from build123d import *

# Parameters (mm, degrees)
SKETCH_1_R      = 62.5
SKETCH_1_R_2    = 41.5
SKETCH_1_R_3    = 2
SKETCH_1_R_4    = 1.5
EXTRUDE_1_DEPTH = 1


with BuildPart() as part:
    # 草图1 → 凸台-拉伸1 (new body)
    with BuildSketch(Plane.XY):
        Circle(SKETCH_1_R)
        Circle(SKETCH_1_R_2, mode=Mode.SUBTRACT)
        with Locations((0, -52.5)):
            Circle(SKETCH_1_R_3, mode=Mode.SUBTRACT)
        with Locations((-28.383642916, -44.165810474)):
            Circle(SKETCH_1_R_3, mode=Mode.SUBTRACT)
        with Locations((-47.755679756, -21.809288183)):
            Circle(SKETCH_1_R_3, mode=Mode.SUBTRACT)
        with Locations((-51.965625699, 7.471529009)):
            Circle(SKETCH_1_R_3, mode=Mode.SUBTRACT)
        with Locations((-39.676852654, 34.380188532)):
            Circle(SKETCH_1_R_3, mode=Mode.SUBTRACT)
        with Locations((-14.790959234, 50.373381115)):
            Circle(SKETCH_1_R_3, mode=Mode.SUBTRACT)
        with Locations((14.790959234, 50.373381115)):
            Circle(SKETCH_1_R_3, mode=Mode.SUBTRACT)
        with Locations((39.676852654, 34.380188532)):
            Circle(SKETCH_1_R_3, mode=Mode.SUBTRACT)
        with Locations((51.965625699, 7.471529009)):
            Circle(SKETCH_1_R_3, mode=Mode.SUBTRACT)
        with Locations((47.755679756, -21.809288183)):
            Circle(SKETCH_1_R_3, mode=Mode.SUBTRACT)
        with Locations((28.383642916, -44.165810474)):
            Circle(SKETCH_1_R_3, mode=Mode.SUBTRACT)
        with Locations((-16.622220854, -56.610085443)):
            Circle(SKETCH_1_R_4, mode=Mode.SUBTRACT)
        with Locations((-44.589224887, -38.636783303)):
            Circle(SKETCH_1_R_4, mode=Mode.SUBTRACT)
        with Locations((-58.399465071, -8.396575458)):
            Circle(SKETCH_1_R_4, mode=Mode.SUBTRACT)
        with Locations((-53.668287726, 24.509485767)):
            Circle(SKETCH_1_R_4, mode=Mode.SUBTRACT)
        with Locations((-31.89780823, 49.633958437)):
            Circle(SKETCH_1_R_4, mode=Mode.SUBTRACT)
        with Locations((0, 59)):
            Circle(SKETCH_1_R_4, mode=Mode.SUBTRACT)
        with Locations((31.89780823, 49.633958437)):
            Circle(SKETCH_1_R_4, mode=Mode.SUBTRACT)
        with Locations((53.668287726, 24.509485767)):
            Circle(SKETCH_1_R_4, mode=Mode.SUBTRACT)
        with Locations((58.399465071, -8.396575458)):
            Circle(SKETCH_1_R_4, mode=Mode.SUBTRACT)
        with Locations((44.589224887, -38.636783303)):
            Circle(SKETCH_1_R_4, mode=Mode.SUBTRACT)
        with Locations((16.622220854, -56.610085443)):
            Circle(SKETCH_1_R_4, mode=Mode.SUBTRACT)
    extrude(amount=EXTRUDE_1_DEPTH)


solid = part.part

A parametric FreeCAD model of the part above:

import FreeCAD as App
import Part
import Sketcher
from FreeCAD import Vector

doc = App.newDocument("Part")
body = doc.addObject("PartDesign::Body", "Body")

sketch1 = body.newObject("Sketcher::SketchObject", "Sketch")
sketch1.AttachmentSupport = (doc.getObject("XY_Plane"), [""])
sketch1.MapMode = "FlatFace"
sketch1.addGeometry([
    Part.Circle(Vector(0, 0, 0), Vector(0, 0, 1), 62.5),
    Part.Circle(Vector(-44.589225, -38.636783, 0), Vector(0, 0, 1), 1.5),
    Part.Circle(Vector(-16.622221, -56.610085, 0), Vector(0, 0, 1), 1.5),
    Part.Circle(Vector(-28.383643, -44.16581, 0), Vector(0, 0, 1), 2),
    Part.Circle(Vector(-47.75568, -21.809288, 0), Vector(0, 0, 1), 2),
    Part.Circle(Vector(-58.399465, -8.396575, 0), Vector(0, 0, 1), 1.5),
    Part.Circle(Vector(0, -52.5, 0), Vector(0, 0, 1), 2),
    Part.Circle(Vector(16.622221, -56.610085, 0), Vector(0, 0, 1), 1.5),
    Part.Circle(Vector(28.383643, -44.16581, 0), Vector(0, 0, 1), 2),
    Part.Circle(Vector(44.589225, -38.636783, 0), Vector(0, 0, 1), 1.5),
    Part.Circle(Vector(0, 0, 0), Vector(0, 0, 1), 41.5),
    Part.Circle(Vector(47.75568, -21.809288, 0), Vector(0, 0, 1), 2),
    Part.Circle(Vector(58.399465, -8.396575, 0), Vector(0, 0, 1), 1.5),
    Part.Circle(Vector(-51.965626, 7.471529, 0), Vector(0, 0, 1), 2),
    Part.Circle(Vector(-53.668288, 24.509486, 0), Vector(0, 0, 1), 1.5),
    Part.Circle(Vector(-39.676853, 34.380189, 0), Vector(0, 0, 1), 2),
    Part.Circle(Vector(-31.897808, 49.633958, 0), Vector(0, 0, 1), 1.5),
    Part.Circle(Vector(-14.790959, 50.373381, 0), Vector(0, 0, 1), 2),
    Part.Circle(Vector(51.965626, 7.471529, 0), Vector(0, 0, 1), 2),
    Part.Circle(Vector(53.668288, 24.509486, 0), Vector(0, 0, 1), 1.5),
    Part.Circle(Vector(14.790959, 50.373381, 0), Vector(0, 0, 1), 2),
    Part.Circle(Vector(0, 59, 0), Vector(0, 0, 1), 1.5),
    Part.Circle(Vector(39.676853, 34.380189, 0), Vector(0, 0, 1), 2),
    Part.Circle(Vector(31.897808, 49.633958, 0), Vector(0, 0, 1), 1.5),
], False)
sketch1.addConstraint([
    Sketcher.Constraint("Coincident", 0, 3, -1, 1),
    Sketcher.Constraint("Coincident", 10, 3, -1, 1),
    Sketcher.Constraint("Equal", 1, 2),
    Sketcher.Constraint("Equal", 3, 4),
    Sketcher.Constraint("Equal", 2, 5),
    Sketcher.Constraint("Equal", 4, 6),
    Sketcher.Constraint("Equal", 5, 7),
    Sketcher.Constraint("Equal", 6, 8),
    Sketcher.Constraint("Equal", 7, 9),
    Sketcher.Constraint("Equal", 8, 11),
    Sketcher.Constraint("Equal", 9, 12),
    Sketcher.Constraint("Equal", 11, 13),
    Sketcher.Constraint("Equal", 12, 14),
    Sketcher.Constraint("Equal", 13, 15),
    Sketcher.Constraint("Equal", 14, 16),
    Sketcher.Constraint("Equal", 15, 17),
    Sketcher.Constraint("Equal", 17, 18),
    Sketcher.Constraint("Equal", 16, 19),
    Sketcher.Constraint("Equal", 18, 20),
    Sketcher.Constraint("Equal", 19, 21),
    Sketcher.Constraint("Equal", 20, 22),
    Sketcher.Constraint("Equal", 21, 23),
    Sketcher.Constraint("Symmetric", 2, 3, 7, 3, -2),
    Sketcher.Constraint("Symmetric", 3, 3, 8, 3, -2),
    Sketcher.Constraint("Symmetric", 1, 3, 9, 3, -2),
    Sketcher.Constraint("Symmetric", 4, 3, 11, 3, -2),
    Sketcher.Constraint("Symmetric", 5, 3, 12, 3, -2),
    Sketcher.Constraint("Symmetric", 13, 3, 18, 3, -2),
    Sketcher.Constraint("Symmetric", 14, 3, 19, 3, -2),
    Sketcher.Constraint("Symmetric", 17, 3, 20, 3, -2),
    Sketcher.Constraint("Symmetric", 15, 3, 22, 3, -2),
    Sketcher.Constraint("Symmetric", 16, 3, 23, 3, -2),
    Sketcher.Constraint("PointOnObject", 6, 3, -2),
    Sketcher.Constraint("PointOnObject", 21, 3, -2),
    Sketcher.Constraint("Diameter", 0, 125.0),
    Sketcher.Constraint("Diameter", 1, 3.0),
    Sketcher.Constraint("Diameter", 3, 4.0),
    Sketcher.Constraint("Diameter", 10, 83.0),
    Sketcher.Constraint("DistanceY", -1, 1, 21, 3, 59.0),
    Sketcher.Constraint("DistanceY", 6, 3, -1, 1, 52.5),
    Sketcher.Constraint("DistanceX", 13, 3, 1, 3, 7.376401),
    Sketcher.Constraint("DistanceX", 2, 3, -1, 1, 16.622221),
    Sketcher.Constraint("DistanceY", 3, 3, -1, 1, 44.16581),
    Sketcher.Constraint("DistanceX", 4, 3, -1, 1, 47.75568),
    Sketcher.Constraint("DistanceY", 4, 3, -1, 1, 21.809288),
    Sketcher.Constraint("DistanceY", -1, 1, 13, 3, 7.471529),
    Sketcher.Constraint("DistanceY", -1, 1, 15, 3, 34.380189),
    Sketcher.Constraint("DistanceX", 16, 3, -1, 1, 31.897808),
    Sketcher.Constraint("DistanceY", -1, 1, 16, 3, 49.633958),
    Sketcher.Constraint("DistanceX", 17, 3, -1, 1, 14.790959),
    Sketcher.Constraint("DistanceY", -1, 1, 17, 3, 50.373381),
    Sketcher.Constraint("DistanceX", 1, 3, 3, 3, 16.205582),
    Sketcher.Constraint("DistanceX", 5, 3, 1, 3, 13.81024),
    Sketcher.Constraint("DistanceY", 2, 3, 5, 3, 48.21351),
    Sketcher.Constraint("DistanceY", 5, 3, 14, 3, 32.906061),
    Sketcher.Constraint("DistanceX", 14, 3, 16, 3, 21.770479),
    Sketcher.Constraint("DistanceX", 1, 3, -1, 1, 44.589225),
    Sketcher.Constraint("DistanceY", 1, 3, -1, 1, 38.636783),
    Sketcher.Constraint("DistanceY", 2, 3, -1, 1, 56.610085),
    Sketcher.Constraint("DistanceX", 15, 3, -1, 1, 39.676853),
])
pad1 = body.newObject("PartDesign::Pad", "Pad")
pad1.Profile = sketch1
pad1.Length = 1

doc.recompute()
